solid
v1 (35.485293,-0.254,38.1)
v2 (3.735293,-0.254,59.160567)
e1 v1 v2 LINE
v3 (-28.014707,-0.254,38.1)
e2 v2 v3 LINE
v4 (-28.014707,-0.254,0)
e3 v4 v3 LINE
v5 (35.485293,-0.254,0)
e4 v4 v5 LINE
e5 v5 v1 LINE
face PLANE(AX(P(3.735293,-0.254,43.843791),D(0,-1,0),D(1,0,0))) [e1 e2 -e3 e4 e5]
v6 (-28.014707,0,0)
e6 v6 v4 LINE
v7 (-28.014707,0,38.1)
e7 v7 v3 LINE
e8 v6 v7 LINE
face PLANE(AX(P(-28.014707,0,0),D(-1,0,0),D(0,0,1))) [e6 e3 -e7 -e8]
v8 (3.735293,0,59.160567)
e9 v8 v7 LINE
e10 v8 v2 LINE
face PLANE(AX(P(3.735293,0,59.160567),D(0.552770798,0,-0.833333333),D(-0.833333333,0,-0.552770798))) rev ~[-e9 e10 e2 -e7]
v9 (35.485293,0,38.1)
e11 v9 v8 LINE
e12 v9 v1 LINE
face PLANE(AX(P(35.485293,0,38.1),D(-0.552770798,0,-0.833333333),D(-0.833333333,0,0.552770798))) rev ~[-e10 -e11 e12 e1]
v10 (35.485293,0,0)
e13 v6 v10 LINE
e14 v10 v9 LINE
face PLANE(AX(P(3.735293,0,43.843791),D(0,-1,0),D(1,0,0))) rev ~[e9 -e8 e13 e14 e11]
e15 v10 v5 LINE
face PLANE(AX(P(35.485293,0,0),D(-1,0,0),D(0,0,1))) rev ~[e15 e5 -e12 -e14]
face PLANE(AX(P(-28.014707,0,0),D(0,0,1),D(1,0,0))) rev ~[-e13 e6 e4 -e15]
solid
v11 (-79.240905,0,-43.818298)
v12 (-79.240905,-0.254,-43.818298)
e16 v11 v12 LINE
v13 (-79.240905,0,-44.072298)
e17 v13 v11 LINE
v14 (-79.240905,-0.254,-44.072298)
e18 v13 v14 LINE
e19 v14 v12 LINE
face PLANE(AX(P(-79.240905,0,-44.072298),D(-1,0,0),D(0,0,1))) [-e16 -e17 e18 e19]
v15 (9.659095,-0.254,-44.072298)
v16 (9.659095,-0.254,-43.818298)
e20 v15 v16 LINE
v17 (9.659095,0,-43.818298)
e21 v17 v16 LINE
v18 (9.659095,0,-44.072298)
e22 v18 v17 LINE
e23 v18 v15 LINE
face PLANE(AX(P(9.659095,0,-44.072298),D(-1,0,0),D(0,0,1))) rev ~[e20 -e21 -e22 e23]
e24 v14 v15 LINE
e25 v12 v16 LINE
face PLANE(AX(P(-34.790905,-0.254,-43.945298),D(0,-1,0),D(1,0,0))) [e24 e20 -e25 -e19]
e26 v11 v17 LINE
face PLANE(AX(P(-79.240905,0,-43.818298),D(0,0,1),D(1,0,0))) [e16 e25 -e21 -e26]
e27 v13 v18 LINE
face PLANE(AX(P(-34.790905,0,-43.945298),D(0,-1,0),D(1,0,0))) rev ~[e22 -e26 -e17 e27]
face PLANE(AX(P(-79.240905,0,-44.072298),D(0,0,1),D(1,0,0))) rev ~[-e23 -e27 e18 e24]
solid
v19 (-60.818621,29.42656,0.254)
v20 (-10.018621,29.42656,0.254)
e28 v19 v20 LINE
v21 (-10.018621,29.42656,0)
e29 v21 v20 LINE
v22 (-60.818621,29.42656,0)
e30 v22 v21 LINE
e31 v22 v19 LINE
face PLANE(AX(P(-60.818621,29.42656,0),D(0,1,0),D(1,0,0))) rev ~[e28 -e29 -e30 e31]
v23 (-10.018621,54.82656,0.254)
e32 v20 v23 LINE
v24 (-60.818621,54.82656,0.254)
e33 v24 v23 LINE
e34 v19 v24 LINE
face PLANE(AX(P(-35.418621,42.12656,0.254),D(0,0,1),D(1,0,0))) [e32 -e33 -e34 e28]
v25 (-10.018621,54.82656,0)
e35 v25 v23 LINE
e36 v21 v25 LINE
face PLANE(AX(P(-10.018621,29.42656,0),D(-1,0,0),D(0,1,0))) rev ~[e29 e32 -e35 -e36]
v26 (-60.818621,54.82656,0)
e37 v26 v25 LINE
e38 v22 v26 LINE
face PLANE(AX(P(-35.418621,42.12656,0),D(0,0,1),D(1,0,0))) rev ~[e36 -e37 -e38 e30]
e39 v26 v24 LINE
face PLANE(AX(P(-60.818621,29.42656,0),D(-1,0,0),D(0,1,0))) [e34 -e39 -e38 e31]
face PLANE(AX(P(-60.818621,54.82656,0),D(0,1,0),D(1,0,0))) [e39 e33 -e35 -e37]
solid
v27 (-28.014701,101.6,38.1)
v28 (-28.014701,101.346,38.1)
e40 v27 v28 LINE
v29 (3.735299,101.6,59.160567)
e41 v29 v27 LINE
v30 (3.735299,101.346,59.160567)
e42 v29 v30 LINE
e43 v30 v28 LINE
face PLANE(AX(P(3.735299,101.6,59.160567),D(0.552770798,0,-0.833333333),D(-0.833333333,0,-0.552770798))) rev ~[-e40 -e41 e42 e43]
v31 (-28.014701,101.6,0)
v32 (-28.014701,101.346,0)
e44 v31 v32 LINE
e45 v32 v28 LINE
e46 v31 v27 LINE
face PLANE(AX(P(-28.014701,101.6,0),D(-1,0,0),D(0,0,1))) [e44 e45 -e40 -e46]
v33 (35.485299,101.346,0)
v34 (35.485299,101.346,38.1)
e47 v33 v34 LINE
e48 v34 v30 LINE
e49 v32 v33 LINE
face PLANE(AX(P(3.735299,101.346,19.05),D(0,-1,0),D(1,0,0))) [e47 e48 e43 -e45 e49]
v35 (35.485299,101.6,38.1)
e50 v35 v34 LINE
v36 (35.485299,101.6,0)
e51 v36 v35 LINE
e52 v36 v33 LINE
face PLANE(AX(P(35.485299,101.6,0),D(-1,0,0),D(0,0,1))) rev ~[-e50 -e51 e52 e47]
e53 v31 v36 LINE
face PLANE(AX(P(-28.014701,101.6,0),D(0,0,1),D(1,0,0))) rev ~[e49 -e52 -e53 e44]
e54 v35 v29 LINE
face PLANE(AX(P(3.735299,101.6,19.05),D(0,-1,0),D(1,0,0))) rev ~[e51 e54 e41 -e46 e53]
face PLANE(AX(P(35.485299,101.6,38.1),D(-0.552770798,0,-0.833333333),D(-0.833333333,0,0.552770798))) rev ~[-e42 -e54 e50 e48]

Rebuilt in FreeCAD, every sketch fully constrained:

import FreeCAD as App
import Part
import Sketcher

V = App.Vector
Q = App.Units.Quantity


def add_polygon(sketch, points):
    """Adds a closed chain of lines whose ends are joined by coincident constraints."""
    first, n = sketch.GeometryCount, len(points)
    for a, b in zip(points, points[1:] + points[:1]):
        sketch.addGeometry(Part.LineSegment(App.Vector(*a, 0), App.Vector(*b, 0)), False)
    for i in range(n):
        sketch.addConstraint(Sketcher.Constraint("Coincident", first + i, 2, first + (i + 1) % n, 1))

doc = App.newDocument("Part")
params = doc.addObject("Spreadsheet::Sheet", "Params")
for row, (alias, value) in enumerate([
    ("sketch1_width", "2.5 in"),
    ("sketch1_height", "1.5 in"),
    ("sketch1_length", "1.5 in"),
    ("pad1_length", "0.01 in"),
    ("sketch2_width", "2.5 in"),
    ("sketch2_height", "1.5 in"),
    ("sketch2_length", "1.5 in"),
    ("pad2_length", "0.01 in"),
    ("sketch3_width", "3.5 in"),
    ("sketch3_height", "0.01 in"),
    ("pad3_length", "0.01 in"),
    ("sketch4_width", "3.5 in"),
    ("sketch4_height", "0.01 in"),
    ("pad4_length", "0.01 in"),
    ("sketch5_width", "2 in"),
    ("sketch5_height", "1 in"),
    ("pad5_length", "0.01 in"),
], start=1):
    params.set(f"A{row}", alias)
    params.set(f"B{row}", "=" + value)
    params.setAlias(f"B{row}", alias)

body = doc.addObject("PartDesign::Body", "Body")

sketch1 = body.newObject("Sketcher::SketchObject", "Sketch")
sketch1.AttachmentSupport = (doc.getObject("XZ_Plane"), [""])
sketch1.MapMode = "FlatFace"
add_polygon(sketch1, [(3.735293, 59.160567), (-28.014707, 38.1), (-28.014707, 0), (35.485293, 0), (35.485293, 38.1)])
sketch1.addConstraint(Sketcher.Constraint("Vertical", 1))
sketch1.addConstraint(Sketcher.Constraint("Horizontal", 2))
sketch1.addConstraint(Sketcher.Constraint("Vertical", 3))
sketch1.addConstraint(Sketcher.Constraint("PointOnObject", 1, 2, -1))
sketch1.addConstraint(Sketcher.Constraint("Horizontal", 0, 2, 3, 2))
sketch1.addConstraint(Sketcher.Constraint("Equal", 0, 4))
sketch1.addConstraint(Sketcher.Constraint("DistanceX", 2, 1, 2, 2, Q("2.5 in")))
sketch1.addConstraint(Sketcher.Constraint("DistanceY", 1, 2, 1, 1, Q("1.5 in")))
sketch1.addConstraint(Sketcher.Constraint("Distance", 0, Q("1.5 in")))
sketch1.addConstraint(Sketcher.Constraint("DistanceX", 0, 2, -1, 1, 28.014707))
sketch1.setExpression("Constraints[11]", "Params.sketch1_width")
sketch1.setExpression("Constraints[12]", "Params.sketch1_height")
sketch1.setExpression("Constraints[13]", "Params.sketch1_length")
pad1 = body.newObject("PartDesign::Pad", "Pad")
pad1.Profile = sketch1
pad1.setExpression("Length", "Params.pad1_length")
body2 = doc.addObject("PartDesign::Body", "Body001")

sketch2 = body2.newObject("Sketcher::SketchObject", "Sketch001")
sketch2.AttachmentSupport = (doc.getObject("XZ_Plane001"), [""])
sketch2.MapMode = "FlatFace"
sketch2.AttachmentOffset = App.Placement(V(0, 0, -4 * 25.4), App.Rotation())
add_polygon(sketch2, [(-28.014701, 38.1), (-28.014701, 0), (35.485299, 0), (35.485299, 38.1), (3.735299, 59.160567)])
sketch2.addConstraint(Sketcher.Constraint("Vertical", 0))
sketch2.addConstraint(Sketcher.Constraint("Horizontal", 1))
sketch2.addConstraint(Sketcher.Constraint("Vertical", 2))
sketch2.addConstraint(Sketcher.Constraint("PointOnObject", 0, 2, -1))
sketch2.addConstraint(Sketcher.Constraint("Horizontal", 2, 2, 4, 2))
sketch2.addConstraint(Sketcher.Constraint("Equal", 3, 4))
sketch2.addConstraint(Sketcher.Constraint("DistanceX", 1, 1, 1, 2, Q("2.5 in")))
sketch2.addConstraint(Sketcher.Constraint("DistanceY", 0, 2, 0, 1, Q("1.5 in")))
sketch2.addConstraint(Sketcher.Constraint("Distance", 3, Q("1.5 in")))
sketch2.addConstraint(Sketcher.Constraint("DistanceX", 0, 2, -1, 1, 28.014701))
sketch2.setExpression("Constraints[11]", "Params.sketch2_width")
sketch2.setExpression("Constraints[12]", "Params.sketch2_height")
sketch2.setExpression("Constraints[13]", "Params.sketch2_length")
pad2 = body2.newObject("PartDesign::Pad", "Pad001")
pad2.Profile = sketch2
pad2.setExpression("Length", "Params.pad2_length")
body3 = doc.addObject("PartDesign::Body", "Body002")

sketch3 = body3.newObject("Sketcher::SketchObject", "Sketch002")
sketch3.AttachmentSupport = (doc.getObject("XZ_Plane002"), [""])
sketch3.MapMode = "FlatFace"
add_polygon(sketch3, [(-79.240905, -43.818298), (-79.240905, -44.072298), (9.659095, -44.072298), (9.659095, -43.818298)])
sketch3.addConstraint(Sketcher.Constraint("Vertical", 0))
sketch3.addConstraint(Sketcher.Constraint("Horizontal", 1))
sketch3.addConstraint(Sketcher.Constraint("Vertical", 2))
sketch3.addConstraint(Sketcher.Constraint("Horizontal", 3))
sketch3.addConstraint(Sketcher.Constraint("DistanceX", 1, 1, 1, 2, Q("3.5 in")))
sketch3.addConstraint(Sketcher.Constraint("DistanceY", 0, 2, 0, 1, Q("0.01 in")))
sketch3.addConstraint(Sketcher.Constraint("DistanceX", 0, 2, -1, 1, 79.240905))
sketch3.addConstraint(Sketcher.Constraint("DistanceY", 0, 2, -1, 1, 44.072298))
sketch3.setExpression("Constraints[8]", "Params.sketch3_width")
sketch3.setExpression("Constraints[9]", "Params.sketch3_height")
pad3 = body3.newObject("PartDesign::Pad", "Pad002")
pad3.Profile = sketch3
pad3.setExpression("Length", "Params.pad3_length")

sketch4 = body3.newObject("Sketcher::SketchObject", "Sketch003")
sketch4.AttachmentSupport = (doc.getObject("XZ_Plane002"), [""])
sketch4.MapMode = "FlatFace"
add_polygon(sketch4, [(-79.240905, -43.818298), (-79.240905, -44.072298), (9.659095, -44.072298), (9.659095, -43.818298)])
sketch4.addConstraint(Sketcher.Constraint("Vertical", 0))
sketch4.addConstraint(Sketcher.Constraint("Horizontal", 1))
sketch4.addConstraint(Sketcher.Constraint("Vertical", 2))
sketch4.addConstraint(Sketcher.Constraint("Horizontal", 3))
sketch4.addConstraint(Sketcher.Constraint("DistanceX", 1, 1, 1, 2, Q("3.5 in")))
sketch4.addConstraint(Sketcher.Constraint("DistanceY", 0, 2, 0, 1, Q("0.01 in")))
sketch4.addConstraint(Sketcher.Constraint("DistanceX", 0, 2, -1, 1, 79.240905))
sketch4.addConstraint(Sketcher.Constraint("DistanceY", 0, 2, -1, 1, 44.072298))
sketch4.setExpression("Constraints[8]", "Params.sketch4_width")
sketch4.setExpression("Constraints[9]", "Params.sketch4_height")
pad4 = body3.newObject("PartDesign::Pad", "Pad003")
pad4.Profile = sketch4
pad4.setExpression("Length", "Params.pad4_length")
body4 = doc.addObject("PartDesign::Body", "Body003")

sketch5 = body4.newObject("Sketcher::SketchObject", "Sketch004")
sketch5.AttachmentSupport = (doc.getObject("XY_Plane003"), [""])
sketch5.MapMode = "FlatFace"
add_polygon(sketch5, [(-60.818621, 54.82656), (-60.818621, 29.42656), (-10.018621, 29.42656), (-10.018621, 54.82656)])
sketch5.addConstraint(Sketcher.Constraint("Vertical", 0))
sketch5.addConstraint(Sketcher.Constraint("Horizontal", 1))
sketch5.addConstraint(Sketcher.Constraint("Vertical", 2))
sketch5.addConstraint(Sketcher.Constraint("Horizontal", 3))
sketch5.addConstraint(Sketcher.Constraint("DistanceX", 1, 1, 1, 2, Q("2 in")))
sketch5.addConstraint(Sketcher.Constraint("DistanceY", 0, 2, 0, 1, Q("1 in")))
sketch5.addConstraint(Sketcher.Constraint("DistanceX", 0, 2, -1, 1, 60.818621))
sketch5.addConstraint(Sketcher.Constraint("DistanceY", -1, 1, 0, 2, 29.42656))
sketch5.setExpression("Constraints[8]", "Params.sketch5_width")
sketch5.setExpression("Constraints[9]", "Params.sketch5_height")
pad5 = body4.newObject("PartDesign::Pad", "Pad004")
pad5.Profile = sketch5
pad5.setExpression("Length", "Params.pad5_length")

doc.recompute()
